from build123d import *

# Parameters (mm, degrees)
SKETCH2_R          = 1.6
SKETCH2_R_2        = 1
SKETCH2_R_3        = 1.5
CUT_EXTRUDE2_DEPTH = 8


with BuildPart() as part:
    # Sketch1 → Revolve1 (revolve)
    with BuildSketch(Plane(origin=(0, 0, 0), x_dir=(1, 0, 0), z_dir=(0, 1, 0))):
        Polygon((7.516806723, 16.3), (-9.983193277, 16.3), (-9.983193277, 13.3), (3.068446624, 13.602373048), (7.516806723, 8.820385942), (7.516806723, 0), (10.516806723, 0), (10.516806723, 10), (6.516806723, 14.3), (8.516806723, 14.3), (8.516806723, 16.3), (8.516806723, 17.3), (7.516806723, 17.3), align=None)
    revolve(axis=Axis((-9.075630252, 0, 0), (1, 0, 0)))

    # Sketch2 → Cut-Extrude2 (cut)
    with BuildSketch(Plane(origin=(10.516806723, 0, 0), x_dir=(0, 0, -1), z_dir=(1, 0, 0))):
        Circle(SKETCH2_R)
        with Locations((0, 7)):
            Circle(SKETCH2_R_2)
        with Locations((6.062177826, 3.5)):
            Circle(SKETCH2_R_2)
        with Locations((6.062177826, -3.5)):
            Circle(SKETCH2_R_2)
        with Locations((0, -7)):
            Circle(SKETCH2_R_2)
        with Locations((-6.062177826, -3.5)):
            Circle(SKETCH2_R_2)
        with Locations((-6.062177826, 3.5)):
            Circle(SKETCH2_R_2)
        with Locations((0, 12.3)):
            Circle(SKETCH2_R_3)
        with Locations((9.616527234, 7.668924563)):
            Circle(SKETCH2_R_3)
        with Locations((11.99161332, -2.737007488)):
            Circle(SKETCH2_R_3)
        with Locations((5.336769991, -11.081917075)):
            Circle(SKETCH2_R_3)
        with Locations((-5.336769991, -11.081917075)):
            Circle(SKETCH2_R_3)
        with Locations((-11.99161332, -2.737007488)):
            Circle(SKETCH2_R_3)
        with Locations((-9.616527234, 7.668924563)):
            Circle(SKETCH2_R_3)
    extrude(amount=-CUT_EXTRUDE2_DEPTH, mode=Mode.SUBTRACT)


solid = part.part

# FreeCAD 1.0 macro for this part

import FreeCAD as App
import Part
import Sketcher
from FreeCAD import Vector
Q = App.Units.Quantity


def add_polygon(sketch, points):
    """Adds a closed chain of lines whose ends are joined by coincident constraints."""
    first, n = sketch.GeometryCount, len(points)
    for a, b in zip(points, points[1:] + points[:1]):
        sketch.addGeometry(Part.LineSegment(App.Vector(*a, 0), App.Vector(*b, 0)), False)
    for i in range(n):
        sketch.addConstraint(Sketcher.Constraint("Coincident", first + i, 2, first + (i + 1) % n, 1))

doc = App.newDocument("Part")
body = doc.addObject("PartDesign::Body", "Body")

# Sketch on XZ plane
sketch1 = doc.addObject("Sketcher::SketchObject", "Sketch")
body.addObject(sketch1)
sketch1.AttachmentSupport = (doc.XZ_Plane, [""])
sketch1.MapMode = "FlatFace"
add_polygon(sketch1, [(7.5, -16.3), (-10, -16.3), (-10, -13.3), (3.1, -13.6), (7.5, -8.8), (7.5, 0), (10.5, 0), (10.5, -10), (6.5, -14.3), (8.5, -14.3), (8.5, -17.3), (7.5, -17.3)])  # lines 0-11
sketch1.addConstraint([
    Sketcher.Constraint("Horizontal", 0),
    Sketcher.Constraint("Vertical", 1),
    Sketcher.Constraint("Vertical", 4),
    Sketcher.Constraint("Horizontal", 5),
    Sketcher.Constraint("Vertical", 6),
    Sketcher.Constraint("Horizontal", 8),
    Sketcher.Constraint("Vertical", 9),
    Sketcher.Constraint("Horizontal", 10),
    Sketcher.Constraint("Vertical", 11),
    Sketcher.Constraint("PointOnObject", 4, 2, -1),
    Sketcher.Constraint("Parallel", 3, 7),
    Sketcher.Constraint("Vertical", 4, 2, 10, 2),
    Sketcher.Constraint("Equal", 5, 1),
    Sketcher.Constraint("Equal", 1, 9),
    Sketcher.Constraint("Equal", 10, 11),
    Sketcher.Constraint("DistanceX", 5, 1, 5, 2, Q("3 mm")),
    Sketcher.Constraint("DistanceX", 8, 1, 8, 2, Q("2 mm")),
    Sketcher.Constraint("DistanceX", 10, 2, 10, 1, Q("1 mm")),
    Sketcher.Constraint("DistanceY", 6, 2, 6, 1, Q("10 mm")),
    Sketcher.Constraint("DistanceX", 0, 2, 0, 1, Q("17.5 mm")),
    Sketcher.Constraint("DistanceY", 0, 2, -1, 1, Q("16.3 mm")),
    Sketcher.Constraint("DistanceY", 4, 1, 4, 2, Q("8.820386 mm")),
    Sketcher.Constraint("DistanceX", 1, 2, 2, 2, Q("13.05164 mm")),
    Sketcher.Constraint("DistanceX", 0, 2, -1, 1, Q("9.983193 mm")),
])
revolution = doc.addObject("PartDesign::Revolution", "Revolution")
body.addObject(revolution)
revolution.Profile = sketch1
revolution.ReferenceAxis = (sketch1, ["H_Axis"])
revolution.Angle = 360

# Sketch on YZ plane
sketch2 = doc.addObject("Sketcher::SketchObject", "Sketch001")
body.addObject(sketch2)
sketch2.AttachmentSupport = (doc.YZ_Plane, [""])
sketch2.MapMode = "FlatFace"
sketch2.AttachmentOffset = App.Placement(Vector(0, 0, 10.516807), App.Rotation())
sketch2.addGeometry([
    Part.Circle(Vector(0, 0, 0), Vector(0, 0, 1), 1.6),  # 0
    Part.Circle(Vector(7, 0, 0), Vector(0, 0, 1), 1),  # 1
    Part.Circle(Vector(3.5, -6.1, 0), Vector(0, 0, 1), 1),  # 2
    Part.Circle(Vector(-3.5, -6.1, 0), Vector(0, 0, 1), 1),  # 3
    Part.Circle(Vector(-7, 0, 0), Vector(0, 0, 1), 1),  # 4
    Part.Circle(Vector(-3.5, 6.1, 0), Vector(0, 0, 1), 1),  # 5
    Part.Circle(Vector(3.5, 6.1, 0), Vector(0, 0, 1), 1),  # 6
    Part.Circle(Vector(12.3, 0, 0), Vector(0, 0, 1), 1.5),  # 7
    Part.Circle(Vector(7.7, -9.6, 0), Vector(0, 0, 1), 1.5),  # 8
    Part.Circle(Vector(-2.7, -12, 0), Vector(0, 0, 1), 1.5),  # 9
    Part.Circle(Vector(-11.1, -5.3, 0), Vector(0, 0, 1), 1.5),  # 10
    Part.Circle(Vector(-11.1, 5.3, 0), Vector(0, 0, 1), 1.5),  # 11
    Part.Circle(Vector(-2.7, 12, 0), Vector(0, 0, 1), 1.5),  # 12
    Part.Circle(Vector(7.7, 9.6, 0), Vector(0, 0, 1), 1.5),  # 13
], False)
sketch2.addConstraint([
    Sketcher.Constraint("Coincident", 0, 3, -1, 1),
    Sketcher.Constraint("Equal", 1, 2),
    Sketcher.Constraint("Equal", 2, 3),
    Sketcher.Constraint("Equal", 3, 4),
    Sketcher.Constraint("Equal", 4, 5),
    Sketcher.Constraint("Equal", 5, 6),
    Sketcher.Constraint("Equal", 7, 8),
    Sketcher.Constraint("Equal", 8, 9),
    Sketcher.Constraint("Equal", 9, 10),
    Sketcher.Constraint("Equal", 10, 11),
    Sketcher.Constraint("Equal", 11, 12),
    Sketcher.Constraint("Equal", 12, 13),
    Sketcher.Constraint("Symmetric", 1, 3, 4, 3, -1, 1),
    Sketcher.Constraint("Symmetric", 2, 3, 5, 3, -1, 1),
    Sketcher.Constraint("Symmetric", 3, 3, 6, 3, -1, 1),
    Sketcher.Constraint("Symmetric", 2, 3, 3, 3, -2),
    Sketcher.Constraint("Symmetric", 10, 3, 11, 3, -1),
    Sketcher.Constraint("Symmetric", 9, 3, 12, 3, -1),
    Sketcher.Constraint("Symmetric", 8, 3, 13, 3, -1),
    Sketcher.Constraint("PointOnObject", 1, 3, -1),
    Sketcher.Constraint("PointOnObject", 7, 3, -1),
    Sketcher.Constraint("Diameter", 1, Q("2 mm")),
    Sketcher.Constraint("Diameter", 7, Q("3 mm")),
    Sketcher.Constraint("Diameter", 0, Q("3.2 mm")),
    Sketcher.Constraint("DistanceX", -1, 1, 1, 3, Q("7 mm")),
    Sketcher.Constraint("DistanceX", 3, 3, 2, 3, Q("7 mm")),
    Sketcher.Constraint("DistanceX", -1, 1, 7, 3, Q("12.3 mm")),
    Sketcher.Constraint("DistanceY", 10, 3, -1, 1, Q("5.33677 mm")),
    Sketcher.Constraint("DistanceY", 8, 3, 2, 3, Q("3.554349 mm")),
    Sketcher.Constraint("DistanceX", 10, 3, 9, 3, Q("8.34491 mm")),
    Sketcher.Constraint("DistanceY", 2, 3, -1, 1, Q("6.062178 mm")),
    Sketcher.Constraint("DistanceX", -1, 1, 8, 3, Q("7.668925 mm")),
    Sketcher.Constraint("DistanceX", 9, 3, -1, 1, Q("2.737007 mm")),
    Sketcher.Constraint("DistanceY", 9, 3, -1, 1, Q("11.991613 mm")),
])
pocket1 = doc.addObject("PartDesign::Pocket", "Pocket")
body.addObject(pocket1)
pocket1.Profile = sketch2
pocket1.Length = 8

doc.recompute()
